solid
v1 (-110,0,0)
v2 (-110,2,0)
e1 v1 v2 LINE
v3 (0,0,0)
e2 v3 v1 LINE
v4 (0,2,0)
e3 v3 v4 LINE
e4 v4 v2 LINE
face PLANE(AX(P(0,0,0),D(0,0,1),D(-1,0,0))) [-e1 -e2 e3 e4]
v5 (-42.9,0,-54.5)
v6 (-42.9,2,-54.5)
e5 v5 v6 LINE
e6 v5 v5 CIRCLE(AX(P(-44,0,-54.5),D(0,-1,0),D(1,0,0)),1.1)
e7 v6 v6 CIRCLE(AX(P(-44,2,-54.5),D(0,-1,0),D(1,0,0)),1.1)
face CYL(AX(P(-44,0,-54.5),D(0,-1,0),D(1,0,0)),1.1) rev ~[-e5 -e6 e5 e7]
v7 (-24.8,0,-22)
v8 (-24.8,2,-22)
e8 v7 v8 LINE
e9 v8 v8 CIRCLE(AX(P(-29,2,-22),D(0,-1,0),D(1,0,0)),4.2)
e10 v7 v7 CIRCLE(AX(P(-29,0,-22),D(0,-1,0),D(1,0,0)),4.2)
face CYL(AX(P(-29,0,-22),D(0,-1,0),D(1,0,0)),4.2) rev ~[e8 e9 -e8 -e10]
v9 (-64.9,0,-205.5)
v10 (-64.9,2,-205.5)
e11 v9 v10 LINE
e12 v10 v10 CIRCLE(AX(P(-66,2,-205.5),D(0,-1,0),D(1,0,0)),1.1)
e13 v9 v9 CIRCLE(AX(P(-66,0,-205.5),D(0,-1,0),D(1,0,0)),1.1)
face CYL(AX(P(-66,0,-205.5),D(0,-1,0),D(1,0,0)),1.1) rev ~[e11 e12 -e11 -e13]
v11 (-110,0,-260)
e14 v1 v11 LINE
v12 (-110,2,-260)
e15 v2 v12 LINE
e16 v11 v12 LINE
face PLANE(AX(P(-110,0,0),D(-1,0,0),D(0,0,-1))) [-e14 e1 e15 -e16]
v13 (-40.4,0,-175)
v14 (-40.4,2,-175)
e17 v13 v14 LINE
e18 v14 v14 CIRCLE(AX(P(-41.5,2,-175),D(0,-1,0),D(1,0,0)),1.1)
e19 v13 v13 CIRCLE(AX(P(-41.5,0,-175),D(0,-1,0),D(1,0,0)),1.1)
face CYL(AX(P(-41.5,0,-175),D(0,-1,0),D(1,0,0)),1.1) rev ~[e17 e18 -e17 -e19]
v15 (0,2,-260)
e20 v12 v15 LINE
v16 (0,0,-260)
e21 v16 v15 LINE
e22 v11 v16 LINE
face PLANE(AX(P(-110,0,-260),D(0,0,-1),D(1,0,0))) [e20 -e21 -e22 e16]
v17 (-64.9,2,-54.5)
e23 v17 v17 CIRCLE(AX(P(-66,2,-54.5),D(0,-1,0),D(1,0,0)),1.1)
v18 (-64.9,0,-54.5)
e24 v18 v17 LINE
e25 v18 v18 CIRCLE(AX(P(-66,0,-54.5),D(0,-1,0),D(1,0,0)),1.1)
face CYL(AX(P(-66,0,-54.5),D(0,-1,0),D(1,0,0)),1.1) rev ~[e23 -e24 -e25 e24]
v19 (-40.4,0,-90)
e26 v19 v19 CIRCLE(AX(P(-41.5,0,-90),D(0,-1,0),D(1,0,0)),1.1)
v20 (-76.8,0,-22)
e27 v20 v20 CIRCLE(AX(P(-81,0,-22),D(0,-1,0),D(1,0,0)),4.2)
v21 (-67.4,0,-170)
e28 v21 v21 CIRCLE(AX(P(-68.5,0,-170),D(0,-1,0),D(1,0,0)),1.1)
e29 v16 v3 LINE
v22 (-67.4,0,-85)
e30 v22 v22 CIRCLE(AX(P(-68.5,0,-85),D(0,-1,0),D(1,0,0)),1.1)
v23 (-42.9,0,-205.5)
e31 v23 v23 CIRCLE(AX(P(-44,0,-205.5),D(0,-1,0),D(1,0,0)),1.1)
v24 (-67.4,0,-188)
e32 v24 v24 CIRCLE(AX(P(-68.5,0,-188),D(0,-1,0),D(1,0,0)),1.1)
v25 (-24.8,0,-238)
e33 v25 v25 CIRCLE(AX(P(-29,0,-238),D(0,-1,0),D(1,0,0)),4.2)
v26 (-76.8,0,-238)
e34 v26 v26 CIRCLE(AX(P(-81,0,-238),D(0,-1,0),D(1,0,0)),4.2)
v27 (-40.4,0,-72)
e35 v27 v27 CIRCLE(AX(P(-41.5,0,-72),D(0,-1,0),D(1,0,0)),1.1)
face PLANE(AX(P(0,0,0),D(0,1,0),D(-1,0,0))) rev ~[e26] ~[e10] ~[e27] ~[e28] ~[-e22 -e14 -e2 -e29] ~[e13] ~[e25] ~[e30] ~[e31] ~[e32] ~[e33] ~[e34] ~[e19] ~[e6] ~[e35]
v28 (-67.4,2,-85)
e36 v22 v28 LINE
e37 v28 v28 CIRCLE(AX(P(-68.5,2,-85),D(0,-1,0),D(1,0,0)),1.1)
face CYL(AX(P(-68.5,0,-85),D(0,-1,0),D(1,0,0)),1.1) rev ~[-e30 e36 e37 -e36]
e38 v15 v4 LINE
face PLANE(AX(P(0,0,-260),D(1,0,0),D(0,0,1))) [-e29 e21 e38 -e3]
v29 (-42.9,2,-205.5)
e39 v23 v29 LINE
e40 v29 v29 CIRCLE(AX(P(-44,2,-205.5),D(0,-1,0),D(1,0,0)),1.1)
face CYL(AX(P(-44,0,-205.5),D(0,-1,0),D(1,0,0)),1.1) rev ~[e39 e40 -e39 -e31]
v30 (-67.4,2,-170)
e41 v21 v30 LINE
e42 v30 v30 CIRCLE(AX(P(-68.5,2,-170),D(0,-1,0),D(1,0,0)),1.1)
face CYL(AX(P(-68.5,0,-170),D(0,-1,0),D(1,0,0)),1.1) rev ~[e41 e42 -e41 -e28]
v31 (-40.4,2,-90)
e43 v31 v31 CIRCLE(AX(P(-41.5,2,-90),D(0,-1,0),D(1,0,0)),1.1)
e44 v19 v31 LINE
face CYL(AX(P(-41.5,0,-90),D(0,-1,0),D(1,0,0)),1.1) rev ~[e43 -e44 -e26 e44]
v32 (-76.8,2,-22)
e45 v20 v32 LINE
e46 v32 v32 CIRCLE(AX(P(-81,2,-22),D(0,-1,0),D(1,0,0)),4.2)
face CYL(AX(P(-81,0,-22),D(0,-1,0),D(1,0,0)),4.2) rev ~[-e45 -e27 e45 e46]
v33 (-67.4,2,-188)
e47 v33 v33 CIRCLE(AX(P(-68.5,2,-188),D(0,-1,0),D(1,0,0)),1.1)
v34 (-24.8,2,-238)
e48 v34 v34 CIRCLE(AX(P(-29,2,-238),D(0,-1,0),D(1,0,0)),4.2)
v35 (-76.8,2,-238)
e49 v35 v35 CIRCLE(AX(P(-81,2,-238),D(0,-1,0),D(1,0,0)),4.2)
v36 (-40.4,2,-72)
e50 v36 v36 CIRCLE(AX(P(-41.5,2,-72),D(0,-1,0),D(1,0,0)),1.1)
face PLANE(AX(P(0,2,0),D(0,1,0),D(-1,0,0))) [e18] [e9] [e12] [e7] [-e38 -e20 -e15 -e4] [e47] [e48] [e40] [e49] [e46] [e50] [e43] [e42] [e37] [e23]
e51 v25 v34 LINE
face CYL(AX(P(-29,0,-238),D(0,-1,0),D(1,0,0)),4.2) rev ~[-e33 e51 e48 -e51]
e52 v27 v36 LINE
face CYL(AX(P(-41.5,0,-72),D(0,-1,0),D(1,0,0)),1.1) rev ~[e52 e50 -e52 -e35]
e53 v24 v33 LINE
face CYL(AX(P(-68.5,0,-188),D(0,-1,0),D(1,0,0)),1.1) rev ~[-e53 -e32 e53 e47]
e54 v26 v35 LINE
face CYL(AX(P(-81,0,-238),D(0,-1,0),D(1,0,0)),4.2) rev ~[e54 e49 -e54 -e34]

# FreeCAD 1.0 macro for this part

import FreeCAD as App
import Part
import Sketcher
from FreeCAD import Vector
Q = App.Units.Quantity

doc = App.newDocument("Part")
body = doc.addObject("PartDesign::Body", "Body")

# Sketch on XZ plane
sketch1 = body.newObject("Sketcher::SketchObject", "Sketch")
sketch1.AttachmentSupport = (doc.getObject("XZ_Plane"), [""])
sketch1.MapMode = "FlatFace"
sketch1.addGeometry([
    Part.LineSegment(Vector(-110, 0, 0), Vector(0, 0, 0)),
    Part.LineSegment(Vector(0, 0, 0), Vector(0, -260, 0)),
    Part.LineSegment(Vector(0, -260, 0), Vector(-110, -260, 0)),
    Part.LineSegment(Vector(-110, -260, 0), Vector(-110, 0, 0)),
], False)
sketch1.addConstraint([
    Sketcher.Constraint("Coincident", 0, 2, 1, 1),
    Sketcher.Constraint("Coincident", 1, 2, 2, 1),
    Sketcher.Constraint("Coincident", 2, 2, 3, 1),
    Sketcher.Constraint("Coincident", 3, 2, 0, 1),
    Sketcher.Constraint("Horizontal", 0),
    Sketcher.Constraint("Vertical", 1),
    Sketcher.Constraint("Horizontal", 2),
    Sketcher.Constraint("Vertical", 3),
    Sketcher.Constraint("Coincident", 0, 2, -1, 1),
    Sketcher.Constraint("DistanceX", 0, 1, 0, 2, Q("110 mm")),
    Sketcher.Constraint("DistanceY", 1, 2, 1, 1, Q("260 mm")),
])
pad1 = body.newObject("PartDesign::Pad", "Pad")
pad1.Profile = sketch1
pad1.Length = 2
pad1.Reversed = True

# Sketch on XZ plane
sketch2 = body.newObject("Sketcher::SketchObject", "Sketch001")
sketch2.AttachmentSupport = (doc.getObject("XZ_Plane"), [""])
sketch2.MapMode = "FlatFace"
sketch2.addGeometry([
    Part.Circle(Vector(-41.5, -72, 0), Vector(0, 0, 1), 1.1),  # 0
    Part.Circle(Vector(-41.5, -90, 0), Vector(0, 0, 1), 1.1),  # 1
    Part.Circle(Vector(-68.5, -85, 0), Vector(0, 0, 1), 1.1),  # 2
    Part.Circle(Vector(-66, -54.5, 0), Vector(0, 0, 1), 1.1),  # 3
    Part.Circle(Vector(-44, -54.5, 0), Vector(0, 0, 1), 1.1),  # 4
    Part.Circle(Vector(-44, -205.5, 0), Vector(0, 0, 1), 1.1),  # 5
    Part.Circle(Vector(-66, -205.5, 0), Vector(0, 0, 1), 1.1),  # 6
    Part.Circle(Vector(-68.5, -188, 0), Vector(0, 0, 1), 1.1),  # 7
    Part.Circle(Vector(-68.5, -170, 0), Vector(0, 0, 1), 1.1),  # 8
    Part.Circle(Vector(-41.5, -175, 0), Vector(0, 0, 1), 1.1),  # 9
    Part.Circle(Vector(-29, -22, 0), Vector(0, 0, 1), 4.2),  # 10
    Part.Circle(Vector(-81, -22, 0), Vector(0, 0, 1), 4.2),  # 11
    Part.Circle(Vector(-81, -238, 0), Vector(0, 0, 1), 4.2),  # 12
    Part.Circle(Vector(-29, -238, 0), Vector(0, 0, 1), 4.2),  # 13
], False)
sketch2.addConstraint([
    Sketcher.Constraint("Equal", 0, 1),
    Sketcher.Constraint("Equal", 1, 2),
    Sketcher.Constraint("Equal", 2, 3),
    Sketcher.Constraint("Equal", 3, 4),
    Sketcher.Constraint("Equal", 4, 5),
    Sketcher.Constraint("Equal", 5, 6),
    Sketcher.Constraint("Equal", 6, 7),
    Sketcher.Constraint("Equal", 7, 8),
    Sketcher.Constraint("Equal", 8, 9),
    Sketcher.Constraint("Equal", 10, 11),
    Sketcher.Constraint("Equal", 11, 12),
    Sketcher.Constraint("Equal", 12, 13),
    Sketcher.Constraint("Horizontal", 3, 3, 4, 3),
    Sketcher.Constraint("Horizontal", 5, 3, 6, 3),
    Sketcher.Constraint("Horizontal", 10, 3, 11, 3),
    Sketcher.Constraint("Horizontal", 12, 3, 13, 3),
    Sketcher.Constraint("Vertical", 0, 3, 1, 3),
    Sketcher.Constraint("Vertical", 4, 3, 5, 3),
    Sketcher.Constraint("Vertical", 3, 3, 6, 3),
    Sketcher.Constraint("Vertical", 2, 3, 7, 3),
    Sketcher.Constraint("Vertical", 7, 3, 8, 3),
    Sketcher.Constraint("Vertical", 1, 3, 9, 3),
    Sketcher.Constraint("Vertical", 11, 3, 12, 3),
    Sketcher.Constraint("Vertical", 10, 3, 13, 3),
    Sketcher.Constraint("Diameter", 0, Q("2.2 mm")),
    Sketcher.Constraint("Diameter", 10, Q("8.4 mm")),
    Sketcher.Constraint("DistanceY", 0, 3, -1, 1, Q("72 mm")),
    Sketcher.Constraint("DistanceY", 1, 3, -1, 1, Q("90 mm")),
    Sketcher.Constraint("DistanceY", 2, 3, -1, 1, Q("85 mm")),
    Sketcher.Constraint("DistanceX", 3, 3, -1, 1, Q("66 mm")),
    Sketcher.Constraint("DistanceX", 4, 3, -1, 1, Q("44 mm")),
    Sketcher.Constraint("DistanceY", 7, 3, -1, 1, Q("188 mm")),
    Sketcher.Constraint("DistanceY", 8, 3, -1, 1, Q("170 mm")),
    Sketcher.Constraint("DistanceY", 9, 3, -1, 1, Q("175 mm")),
    Sketcher.Constraint("DistanceX", 10, 3, -1, 1, Q("29 mm")),
    Sketcher.Constraint("DistanceY", 10, 3, -1, 1, Q("22 mm")),
    Sketcher.Constraint("DistanceX", 0, 3, -1, 1, Q("41.5 mm")),
    Sketcher.Constraint("DistanceX", 2, 3, -1, 1, Q("68.5 mm")),
    Sketcher.Constraint("DistanceY", 3, 3, -1, 1, Q("54.5 mm")),
    Sketcher.Constraint("DistanceY", 5, 3, -1, 1, Q("205.5 mm")),
    Sketcher.Constraint("DistanceX", 11, 3, -1, 1, Q("81 mm")),
    Sketcher.Constraint("DistanceY", 12, 3, -1, 1, Q("238 mm")),
])
pocket1 = body.newObject("PartDesign::Pocket", "Pocket")
pocket1.Profile = sketch2
pocket1.Length = 2

doc.recompute()
